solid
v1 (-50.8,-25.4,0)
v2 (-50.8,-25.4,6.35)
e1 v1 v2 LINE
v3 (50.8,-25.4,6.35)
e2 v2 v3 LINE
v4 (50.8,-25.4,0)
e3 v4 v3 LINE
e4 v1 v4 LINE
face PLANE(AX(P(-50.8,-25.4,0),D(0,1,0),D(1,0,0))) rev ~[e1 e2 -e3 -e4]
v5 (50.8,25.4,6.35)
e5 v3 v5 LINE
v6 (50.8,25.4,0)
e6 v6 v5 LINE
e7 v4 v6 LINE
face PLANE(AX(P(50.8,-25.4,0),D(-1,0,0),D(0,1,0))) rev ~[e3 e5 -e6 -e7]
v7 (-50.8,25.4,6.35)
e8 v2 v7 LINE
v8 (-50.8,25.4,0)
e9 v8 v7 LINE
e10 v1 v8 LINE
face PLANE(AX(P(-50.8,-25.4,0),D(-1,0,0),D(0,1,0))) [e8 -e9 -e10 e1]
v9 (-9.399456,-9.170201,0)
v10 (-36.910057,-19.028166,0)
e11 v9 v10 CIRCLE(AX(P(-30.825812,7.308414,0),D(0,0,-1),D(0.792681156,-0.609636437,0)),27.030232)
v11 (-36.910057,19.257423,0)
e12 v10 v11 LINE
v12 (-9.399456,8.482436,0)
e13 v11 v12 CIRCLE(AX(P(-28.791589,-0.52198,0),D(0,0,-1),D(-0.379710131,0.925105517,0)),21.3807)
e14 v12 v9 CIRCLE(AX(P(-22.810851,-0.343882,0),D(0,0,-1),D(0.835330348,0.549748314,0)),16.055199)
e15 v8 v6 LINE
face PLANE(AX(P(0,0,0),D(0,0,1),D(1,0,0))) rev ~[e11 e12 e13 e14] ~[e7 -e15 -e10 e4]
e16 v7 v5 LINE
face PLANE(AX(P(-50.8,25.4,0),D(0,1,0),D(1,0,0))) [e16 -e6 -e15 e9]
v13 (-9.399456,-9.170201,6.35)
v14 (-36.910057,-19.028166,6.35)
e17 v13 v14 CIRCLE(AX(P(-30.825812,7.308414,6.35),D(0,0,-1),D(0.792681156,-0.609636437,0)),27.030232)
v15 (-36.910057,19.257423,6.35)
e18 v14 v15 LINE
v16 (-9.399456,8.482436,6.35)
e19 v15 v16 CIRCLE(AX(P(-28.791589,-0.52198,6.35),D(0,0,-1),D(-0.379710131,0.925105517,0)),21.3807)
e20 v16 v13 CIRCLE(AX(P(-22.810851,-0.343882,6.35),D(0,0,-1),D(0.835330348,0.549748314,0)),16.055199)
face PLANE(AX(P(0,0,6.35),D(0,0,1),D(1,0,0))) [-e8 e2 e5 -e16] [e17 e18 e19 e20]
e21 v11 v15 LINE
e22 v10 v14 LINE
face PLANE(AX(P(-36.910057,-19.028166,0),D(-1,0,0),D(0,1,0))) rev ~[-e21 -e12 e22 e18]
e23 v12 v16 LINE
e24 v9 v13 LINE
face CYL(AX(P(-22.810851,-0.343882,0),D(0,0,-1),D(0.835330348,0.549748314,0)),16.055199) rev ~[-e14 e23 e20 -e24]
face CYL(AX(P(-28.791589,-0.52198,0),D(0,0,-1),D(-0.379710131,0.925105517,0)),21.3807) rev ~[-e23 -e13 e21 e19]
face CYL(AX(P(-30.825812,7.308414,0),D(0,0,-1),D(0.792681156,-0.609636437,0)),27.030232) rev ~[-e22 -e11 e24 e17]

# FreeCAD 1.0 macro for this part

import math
import FreeCAD as App
import Part
import Sketcher

V = App.Vector
Q = App.Units.Quantity

doc = App.newDocument("Part")
body = doc.addObject("PartDesign::Body", "Body")

# Sketch on XY plane
sketch1 = body.newObject("Sketcher::SketchObject", "Sketch")
sketch1.AttachmentSupport = (doc.getObject("XY_Plane"), [""])
sketch1.MapMode = "FlatFace"
sketch1.addGeometry([
    Part.LineSegment(V(-51, 25, 0), V(-51, -25, 0)),  # 0
    Part.LineSegment(V(-51, -25, 0), V(51, -25, 0)),  # 1
    Part.LineSegment(V(51, -25, 0), V(51, 25, 0)),  # 2
    Part.LineSegment(V(51, 25, 0), V(-51, 25, 0)),  # 3
    Part.ArcOfCircle(Part.Circle(V(-31, 7, 0), V(0, 0, 1), 27), math.radians(-103), math.radians(-38)),  # 4
    Part.LineSegment(V(-37, -19, 0), V(-37, 19, 0)),  # 5
    Part.ArcOfCircle(Part.Circle(V(-29, -1, 0), V(0, 0, 1), 21), math.radians(25), math.radians(112)),  # 6
    Part.ArcOfCircle(Part.Circle(V(-23, 0, 0), V(0, 0, 1), 16), math.radians(-33), math.radians(33)),  # 7
], False)
sketch1.addConstraint([
    Sketcher.Constraint("Coincident", 0, 2, 1, 1),
    Sketcher.Constraint("Coincident", 1, 2, 2, 1),
    Sketcher.Constraint("Coincident", 2, 2, 3, 1),
    Sketcher.Constraint("Coincident", 3, 2, 0, 1),
    Sketcher.Constraint("Coincident", 4, 1, 5, 1),
    Sketcher.Constraint("Coincident", 5, 2, 6, 2),
    Sketcher.Constraint("Coincident", 6, 1, 7, 2),
    Sketcher.Constraint("Coincident", 7, 1, 4, 2),
    Sketcher.Constraint("Vertical", 0),
    Sketcher.Constraint("Horizontal", 1),
    Sketcher.Constraint("Vertical", 2),
    Sketcher.Constraint("Horizontal", 3),
    Sketcher.Constraint("Vertical", 5),
    Sketcher.Constraint("Symmetric", 0, 2, 2, 2, -1, 1),
    Sketcher.Constraint("Vertical", 6, 1, 7, 1),
    Sketcher.Constraint("DistanceX", 1, 1, 1, 2, Q("4 in")),
    Sketcher.Constraint("DistanceY", 0, 2, 0, 1, Q("2 in")),
    Sketcher.Constraint("Radius", 6, Q("21.3807 mm")),
    Sketcher.Constraint("Radius", 7, Q("16.055199 mm")),
    Sketcher.Constraint("Radius", 4, Q("27.030232 mm")),
    Sketcher.Constraint("DistanceY", 5, 1, 5, 2, Q("38.285589 mm")),
    Sketcher.Constraint("DistanceY", 7, 1, -1, 1, Q("9.170201 mm")),
    Sketcher.Constraint("DistanceX", 5, 2, 6, 1, Q("27.510601 mm")),
    Sketcher.Constraint("DistanceX", 4, 3, -1, 1, Q("30.825812 mm")),
    Sketcher.Constraint("DistanceX", 6, 3, -1, 1, Q("28.791589 mm")),
    Sketcher.Constraint("DistanceY", 6, 3, -1, 1, Q("0.52198 mm")),
])
pad1 = body.newObject("PartDesign::Pad", "Pad")
pad1.Profile = sketch1
pad1.Length = Q("0.25 in")

doc.recompute()
